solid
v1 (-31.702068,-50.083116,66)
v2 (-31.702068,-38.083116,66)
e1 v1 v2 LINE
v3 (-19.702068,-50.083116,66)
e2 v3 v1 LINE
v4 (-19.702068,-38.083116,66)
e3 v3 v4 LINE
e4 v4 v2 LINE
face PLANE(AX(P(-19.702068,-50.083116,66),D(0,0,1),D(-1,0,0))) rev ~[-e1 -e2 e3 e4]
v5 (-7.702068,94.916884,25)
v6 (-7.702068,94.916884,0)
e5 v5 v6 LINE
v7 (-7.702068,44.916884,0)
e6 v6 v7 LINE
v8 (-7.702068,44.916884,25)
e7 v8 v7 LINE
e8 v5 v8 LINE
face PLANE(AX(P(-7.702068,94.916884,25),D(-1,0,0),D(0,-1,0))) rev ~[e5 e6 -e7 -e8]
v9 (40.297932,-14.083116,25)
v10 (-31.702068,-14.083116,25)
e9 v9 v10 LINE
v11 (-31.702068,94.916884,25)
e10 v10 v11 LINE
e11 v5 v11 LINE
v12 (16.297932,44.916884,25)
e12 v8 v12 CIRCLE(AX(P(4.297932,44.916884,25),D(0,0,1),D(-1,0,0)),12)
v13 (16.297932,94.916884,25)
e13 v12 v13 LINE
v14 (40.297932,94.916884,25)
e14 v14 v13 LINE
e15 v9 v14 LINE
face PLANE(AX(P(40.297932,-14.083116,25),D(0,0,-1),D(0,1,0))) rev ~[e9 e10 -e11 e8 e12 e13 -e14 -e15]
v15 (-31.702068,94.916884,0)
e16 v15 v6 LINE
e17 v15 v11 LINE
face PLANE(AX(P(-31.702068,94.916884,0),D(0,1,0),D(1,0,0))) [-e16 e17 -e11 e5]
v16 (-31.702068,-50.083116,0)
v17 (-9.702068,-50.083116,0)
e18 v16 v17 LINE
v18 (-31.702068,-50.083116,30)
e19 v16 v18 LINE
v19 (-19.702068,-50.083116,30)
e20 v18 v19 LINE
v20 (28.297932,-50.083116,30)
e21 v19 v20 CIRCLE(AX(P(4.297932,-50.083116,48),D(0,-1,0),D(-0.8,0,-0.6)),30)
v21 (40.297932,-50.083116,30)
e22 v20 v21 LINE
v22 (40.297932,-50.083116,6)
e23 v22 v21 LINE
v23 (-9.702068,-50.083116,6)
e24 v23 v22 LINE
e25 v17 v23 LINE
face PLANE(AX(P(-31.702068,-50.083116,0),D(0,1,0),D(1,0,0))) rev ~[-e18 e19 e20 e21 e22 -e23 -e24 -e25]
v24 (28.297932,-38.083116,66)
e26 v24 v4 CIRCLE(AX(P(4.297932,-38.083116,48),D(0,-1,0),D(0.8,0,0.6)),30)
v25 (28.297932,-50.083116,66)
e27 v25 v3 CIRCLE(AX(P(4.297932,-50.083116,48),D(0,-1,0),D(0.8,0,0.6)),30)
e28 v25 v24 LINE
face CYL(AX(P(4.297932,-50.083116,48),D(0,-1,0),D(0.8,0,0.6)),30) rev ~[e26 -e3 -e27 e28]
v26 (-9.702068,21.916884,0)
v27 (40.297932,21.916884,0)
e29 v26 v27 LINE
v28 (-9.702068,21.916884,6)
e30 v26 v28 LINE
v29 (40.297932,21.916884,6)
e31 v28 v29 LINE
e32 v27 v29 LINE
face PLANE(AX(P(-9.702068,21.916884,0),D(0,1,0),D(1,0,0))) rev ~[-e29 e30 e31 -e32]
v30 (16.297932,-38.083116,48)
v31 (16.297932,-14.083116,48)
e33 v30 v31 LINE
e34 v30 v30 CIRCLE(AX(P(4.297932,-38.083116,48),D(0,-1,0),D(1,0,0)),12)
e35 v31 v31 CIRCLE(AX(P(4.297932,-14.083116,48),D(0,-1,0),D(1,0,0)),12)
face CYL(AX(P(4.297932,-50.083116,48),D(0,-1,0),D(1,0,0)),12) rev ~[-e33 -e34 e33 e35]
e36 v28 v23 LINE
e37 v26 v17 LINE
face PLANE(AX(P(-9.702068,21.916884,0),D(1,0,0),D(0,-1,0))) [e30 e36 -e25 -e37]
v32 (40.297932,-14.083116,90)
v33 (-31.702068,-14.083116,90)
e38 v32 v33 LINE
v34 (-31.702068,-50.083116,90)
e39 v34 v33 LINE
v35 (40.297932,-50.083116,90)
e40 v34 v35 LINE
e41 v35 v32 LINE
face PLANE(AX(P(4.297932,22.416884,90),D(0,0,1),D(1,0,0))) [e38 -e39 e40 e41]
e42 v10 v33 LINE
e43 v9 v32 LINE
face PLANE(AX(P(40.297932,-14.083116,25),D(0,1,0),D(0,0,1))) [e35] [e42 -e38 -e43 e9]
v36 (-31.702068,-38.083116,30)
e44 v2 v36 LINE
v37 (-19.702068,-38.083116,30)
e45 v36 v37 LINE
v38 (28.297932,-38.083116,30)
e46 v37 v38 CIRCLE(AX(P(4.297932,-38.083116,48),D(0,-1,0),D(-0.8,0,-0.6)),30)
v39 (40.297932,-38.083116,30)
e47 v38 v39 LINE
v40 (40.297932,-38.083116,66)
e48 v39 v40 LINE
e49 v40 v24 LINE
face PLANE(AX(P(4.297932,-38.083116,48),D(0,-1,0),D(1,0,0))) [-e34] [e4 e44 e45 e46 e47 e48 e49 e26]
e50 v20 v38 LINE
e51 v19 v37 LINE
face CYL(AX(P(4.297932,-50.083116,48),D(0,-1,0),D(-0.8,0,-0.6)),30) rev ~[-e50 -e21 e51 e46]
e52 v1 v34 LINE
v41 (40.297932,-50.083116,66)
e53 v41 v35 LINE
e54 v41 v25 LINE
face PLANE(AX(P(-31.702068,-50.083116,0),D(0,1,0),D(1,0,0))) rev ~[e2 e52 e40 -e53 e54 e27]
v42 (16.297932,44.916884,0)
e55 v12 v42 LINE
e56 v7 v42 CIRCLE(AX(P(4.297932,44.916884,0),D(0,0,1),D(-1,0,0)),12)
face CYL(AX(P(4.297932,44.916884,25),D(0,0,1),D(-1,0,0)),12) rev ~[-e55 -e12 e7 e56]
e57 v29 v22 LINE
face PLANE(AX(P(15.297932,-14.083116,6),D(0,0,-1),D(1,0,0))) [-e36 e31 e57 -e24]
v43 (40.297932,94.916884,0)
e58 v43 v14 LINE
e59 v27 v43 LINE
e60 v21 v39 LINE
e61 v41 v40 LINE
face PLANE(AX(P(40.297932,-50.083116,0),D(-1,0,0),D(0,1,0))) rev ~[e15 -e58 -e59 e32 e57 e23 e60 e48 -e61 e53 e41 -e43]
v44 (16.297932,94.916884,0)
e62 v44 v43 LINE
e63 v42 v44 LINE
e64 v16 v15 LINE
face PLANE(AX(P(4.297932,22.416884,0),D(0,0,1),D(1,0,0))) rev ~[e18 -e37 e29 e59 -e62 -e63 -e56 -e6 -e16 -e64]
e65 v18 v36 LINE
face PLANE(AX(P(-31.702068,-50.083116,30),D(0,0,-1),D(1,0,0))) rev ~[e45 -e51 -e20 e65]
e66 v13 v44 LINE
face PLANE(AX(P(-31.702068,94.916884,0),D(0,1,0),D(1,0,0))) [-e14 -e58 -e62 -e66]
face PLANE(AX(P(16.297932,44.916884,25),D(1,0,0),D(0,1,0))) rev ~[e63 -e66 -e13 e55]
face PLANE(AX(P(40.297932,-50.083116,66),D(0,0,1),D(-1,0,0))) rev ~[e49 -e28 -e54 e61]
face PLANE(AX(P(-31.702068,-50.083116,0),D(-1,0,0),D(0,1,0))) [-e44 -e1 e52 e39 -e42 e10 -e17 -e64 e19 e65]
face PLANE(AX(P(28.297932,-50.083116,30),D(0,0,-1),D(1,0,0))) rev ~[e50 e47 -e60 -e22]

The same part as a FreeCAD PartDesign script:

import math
import FreeCAD as App
import Part
import Sketcher
from FreeCAD import Vector

doc = App.newDocument("Part")
body = doc.addObject("PartDesign::Body", "Body")

# Sketch on XY plane
sketch1 = body.newObject("Sketcher::SketchObject", "Sketch")
sketch1.AttachmentSupport = (doc.getObject("XY_Plane"), [""])
sketch1.MapMode = "FlatFace"
sketch1.addGeometry([
    Part.LineSegment(Vector(-32, 95, 0), Vector(-32, -50, 0)),
    Part.LineSegment(Vector(-32, -50, 0), Vector(40, -50, 0)),
    Part.LineSegment(Vector(40, -50, 0), Vector(40, 95, 0)),
    Part.LineSegment(Vector(40, 95, 0), Vector(-32, 95, 0)),
], False)
sketch1.addConstraint([
    Sketcher.Constraint("Coincident", 0, 2, 1, 1),
    Sketcher.Constraint("Coincident", 1, 2, 2, 1),
    Sketcher.Constraint("Coincident", 2, 2, 3, 1),
    Sketcher.Constraint("Coincident", 3, 2, 0, 1),
    Sketcher.Constraint("Vertical", 0),
    Sketcher.Constraint("Horizontal", 1),
    Sketcher.Constraint("Vertical", 2),
    Sketcher.Constraint("Horizontal", 3),
    Sketcher.Constraint("DistanceX", 1, 1, 1, 2, 72.0),
    Sketcher.Constraint("DistanceY", 0, 2, 0, 1, 145.0),
    Sketcher.Constraint("DistanceX", 0, 2, -1, 1, 31.702068),
    Sketcher.Constraint("DistanceY", 0, 2, -1, 1, 50.083116),
])
pad1 = body.newObject("PartDesign::Pad", "Pad")
pad1.Profile = sketch1
pad1.Length = 90

# Sketch on YZ plane
sketch2 = body.newObject("Sketcher::SketchObject", "Sketch001")
sketch2.AttachmentSupport = (doc.getObject("YZ_Plane"), [""])
sketch2.MapMode = "FlatFace"
sketch2.AttachmentOffset = App.Placement(Vector(0, 0, 40.297932), App.Rotation())
sketch2.addGeometry([
    Part.LineSegment(Vector(-14, 90, 0), Vector(-14, 25, 0)),
    Part.LineSegment(Vector(-14, 25, 0), Vector(95, 25, 0)),
    Part.LineSegment(Vector(95, 25, 0), Vector(95, 90, 0)),
    Part.LineSegment(Vector(95, 90, 0), Vector(-14, 90, 0)),
], False)
sketch2.addConstraint([
    Sketcher.Constraint("Coincident", 0, 2, 1, 1),
    Sketcher.Constraint("Coincident", 1, 2, 2, 1),
    Sketcher.Constraint("Coincident", 2, 2, 3, 1),
    Sketcher.Constraint("Coincident", 3, 2, 0, 1),
    Sketcher.Constraint("Vertical", 0),
    Sketcher.Constraint("Horizontal", 1),
    Sketcher.Constraint("Vertical", 2),
    Sketcher.Constraint("Horizontal", 3),
    Sketcher.Constraint("DistanceX", 1, 1, 1, 2, 109.0),
    Sketcher.Constraint("DistanceY", 0, 2, 0, 1, 65.0),
    Sketcher.Constraint("DistanceY", -1, 1, 0, 2, 25.0),
    Sketcher.Constraint("DistanceX", 0, 2, -1, 1, 14.083116),
])
pocket1 = body.newObject("PartDesign::Pocket", "Pocket")
pocket1.Profile = sketch2
pocket1.Length = 72

# Sketch on XY plane
sketch3 = body.newObject("Sketcher::SketchObject", "Sketch002")
sketch3.AttachmentSupport = (doc.getObject("XY_Plane"), [""])
sketch3.MapMode = "FlatFace"
sketch3.addGeometry([
    Part.LineSegment(Vector(-10, -50, 0), Vector(-10, 22, 0)),
    Part.LineSegment(Vector(-10, 22, 0), Vector(40, 22, 0)),
    Part.LineSegment(Vector(40, 22, 0), Vector(40, -50, 0)),
    Part.LineSegment(Vector(40, -50, 0), Vector(-10, -50, 0)),
], False)
sketch3.addConstraint([
    Sketcher.Constraint("Coincident", 0, 2, 1, 1),
    Sketcher.Constraint("Coincident", 1, 2, 2, 1),
    Sketcher.Constraint("Coincident", 2, 2, 3, 1),
    Sketcher.Constraint("Coincident", 3, 2, 0, 1),
    Sketcher.Constraint("Vertical", 0),
    Sketcher.Constraint("Horizontal", 1),
    Sketcher.Constraint("Vertical", 2),
    Sketcher.Constraint("Horizontal", 3),
    Sketcher.Constraint("DistanceX", 1, 1, 1, 2, 50.0),
    Sketcher.Constraint("DistanceY", 0, 1, 0, 2, 72.0),
    Sketcher.Constraint("DistanceX", 0, 2, -1, 1, 9.702068),
    Sketcher.Constraint("DistanceY", -1, 1, 0, 2, 21.916884),
])
pocket2 = body.newObject("PartDesign::Pocket", "Pocket001")
pocket2.Profile = sketch3
pocket2.Length = 6
pocket2.Reversed = True

# Sketch on XY plane
sketch4 = body.newObject("Sketcher::SketchObject", "Sketch003")
sketch4.AttachmentSupport = (doc.getObject("XY_Plane"), [""])
sketch4.MapMode = "FlatFace"
sketch4.AttachmentOffset = App.Placement(Vector(0, 0, 25), App.Rotation())
sketch4.addGeometry([
    Part.LineSegment(Vector(16, 95, 0), Vector(-8, 95, 0)),
    Part.LineSegment(Vector(-8, 95, 0), Vector(-8, 45, 0)),
    Part.ArcOfCircle(Part.Circle(Vector(4, 45, 0), Vector(0, 0, 1), 12), math.radians(180), math.radians(360)),
    Part.LineSegment(Vector(16, 45, 0), Vector(16, 95, 0)),
], False)
sketch4.addConstraint([
    Sketcher.Constraint("Coincident", 0, 2, 1, 1),
    Sketcher.Constraint("Tangent", 1, 2, 2, 1),
    Sketcher.Constraint("Tangent", 2, 2, 3, 1),
    Sketcher.Constraint("Coincident", 3, 2, 0, 1),
    Sketcher.Constraint("Horizontal", 0),
    Sketcher.Constraint("Vertical", 1),
    Sketcher.Constraint("Vertical", 3),
    Sketcher.Constraint("Radius", 2, 12.0),
    Sketcher.Constraint("DistanceY", 1, 2, 1, 1, 50.0),
    Sketcher.Constraint("DistanceX", -1, 1, 2, 2, 16.297932),
    Sketcher.Constraint("DistanceY", -1, 1, 2, 3, 44.916884),
])
pocket3 = body.newObject("PartDesign::Pocket", "Pocket002")
pocket3.Profile = sketch4
pocket3.Length = 25

# Sketch on XZ plane
sketch5 = body.newObject("Sketcher::SketchObject", "Sketch004")
sketch5.AttachmentSupport = (doc.getObject("XZ_Plane"), [""])
sketch5.MapMode = "FlatFace"
sketch5.AttachmentOffset = App.Placement(Vector(0, 0, 50.083116), App.Rotation())
sketch5.addGeometry([
    Part.LineSegment(Vector(-20, 66, 0), Vector(-32, 66, 0)),  # 0
    Part.LineSegment(Vector(-32, 66, 0), Vector(-32, 30, 0)),  # 1
    Part.LineSegment(Vector(-32, 30, 0), Vector(-20, 30, 0)),  # 2
    Part.ArcOfCircle(Part.Circle(Vector(4, 48, 0), Vector(0, 0, 1), 30), math.radians(-143), math.radians(-37)),  # 3
    Part.LineSegment(Vector(28, 30, 0), Vector(40, 30, 0)),  # 4
    Part.LineSegment(Vector(40, 30, 0), Vector(40, 66, 0)),  # 5
    Part.LineSegment(Vector(40, 66, 0), Vector(28, 66, 0)),  # 6
    Part.ArcOfCircle(Part.Circle(Vector(4, 48, 0), Vector(0, 0, 1), 30), math.radians(37), math.radians(143)),  # 7
    Part.Circle(Vector(4, 48, 0), Vector(0, 0, 1), 12),  # 8
], False)
sketch5.addConstraint([
    Sketcher.Constraint("Coincident", 0, 2, 1, 1),
    Sketcher.Constraint("Coincident", 1, 2, 2, 1),
    Sketcher.Constraint("Coincident", 2, 2, 3, 1),
    Sketcher.Constraint("Coincident", 3, 2, 4, 1),
    Sketcher.Constraint("Coincident", 4, 2, 5, 1),
    Sketcher.Constraint("Coincident", 5, 2, 6, 1),
    Sketcher.Constraint("Coincident", 6, 2, 7, 1),
    Sketcher.Constraint("Coincident", 7, 2, 0, 1),
    Sketcher.Constraint("Horizontal", 0),
    Sketcher.Constraint("Vertical", 1),
    Sketcher.Constraint("Horizontal", 2),
    Sketcher.Constraint("Horizontal", 4),
    Sketcher.Constraint("Vertical", 5),
    Sketcher.Constraint("Horizontal", 6),
    Sketcher.Constraint("Coincident", 7, 3, 3, 3),
    Sketcher.Constraint("Coincident", 8, 3, 3, 3),
    Sketcher.Constraint("Equal", 3, 7),
    Sketcher.Constraint("Horizontal", 2, 2, 3, 2),
    Sketcher.Constraint("Horizontal", 0, 2, 5, 2),
    Sketcher.Constraint("Vertical", 3, 2, 6, 2),
    Sketcher.Constraint("Equal", 2, 4),
    Sketcher.Constraint("Diameter", 8, 24.0),
    Sketcher.Constraint("Radius", 3, 30.0),
    Sketcher.Constraint("DistanceX", 0, 2, 0, 1, 12.0),
    Sketcher.Constraint("DistanceY", 1, 2, 1, 1, 36.0),
    Sketcher.Constraint("DistanceY", -1, 1, 3, 3, 48.0),
    Sketcher.Constraint("DistanceX", 0, 2, -1, 1, 31.702068),
])
pocket4 = body.newObject("PartDesign::Pocket", "Pocket003")
pocket4.Profile = sketch5
pocket4.Length = 12

# Sketch on XZ plane
sketch6 = body.newObject("Sketcher::SketchObject", "Sketch005")
sketch6.AttachmentSupport = (doc.getObject("XZ_Plane"), [""])
sketch6.MapMode = "FlatFace"
sketch6.AttachmentOffset = App.Placement(Vector(0, 0, 50.083116), App.Rotation())
sketch6.addGeometry(Part.Circle(Vector(4, 48, 0), Vector(0, 0, 1), 12), False)
sketch6.addConstraint([
    Sketcher.Constraint("Diameter", 0, 24.0),
    Sketcher.Constraint("DistanceY", -1, 1, 0, 3, 48.0),
    Sketcher.Constraint("DistanceX", -1, 1, 0, 3, 4.297932),
])
pocket5 = body.newObject("PartDesign::Pocket", "Pocket004")
pocket5.Profile = sketch6
pocket5.Length = 36

doc.recompute()
